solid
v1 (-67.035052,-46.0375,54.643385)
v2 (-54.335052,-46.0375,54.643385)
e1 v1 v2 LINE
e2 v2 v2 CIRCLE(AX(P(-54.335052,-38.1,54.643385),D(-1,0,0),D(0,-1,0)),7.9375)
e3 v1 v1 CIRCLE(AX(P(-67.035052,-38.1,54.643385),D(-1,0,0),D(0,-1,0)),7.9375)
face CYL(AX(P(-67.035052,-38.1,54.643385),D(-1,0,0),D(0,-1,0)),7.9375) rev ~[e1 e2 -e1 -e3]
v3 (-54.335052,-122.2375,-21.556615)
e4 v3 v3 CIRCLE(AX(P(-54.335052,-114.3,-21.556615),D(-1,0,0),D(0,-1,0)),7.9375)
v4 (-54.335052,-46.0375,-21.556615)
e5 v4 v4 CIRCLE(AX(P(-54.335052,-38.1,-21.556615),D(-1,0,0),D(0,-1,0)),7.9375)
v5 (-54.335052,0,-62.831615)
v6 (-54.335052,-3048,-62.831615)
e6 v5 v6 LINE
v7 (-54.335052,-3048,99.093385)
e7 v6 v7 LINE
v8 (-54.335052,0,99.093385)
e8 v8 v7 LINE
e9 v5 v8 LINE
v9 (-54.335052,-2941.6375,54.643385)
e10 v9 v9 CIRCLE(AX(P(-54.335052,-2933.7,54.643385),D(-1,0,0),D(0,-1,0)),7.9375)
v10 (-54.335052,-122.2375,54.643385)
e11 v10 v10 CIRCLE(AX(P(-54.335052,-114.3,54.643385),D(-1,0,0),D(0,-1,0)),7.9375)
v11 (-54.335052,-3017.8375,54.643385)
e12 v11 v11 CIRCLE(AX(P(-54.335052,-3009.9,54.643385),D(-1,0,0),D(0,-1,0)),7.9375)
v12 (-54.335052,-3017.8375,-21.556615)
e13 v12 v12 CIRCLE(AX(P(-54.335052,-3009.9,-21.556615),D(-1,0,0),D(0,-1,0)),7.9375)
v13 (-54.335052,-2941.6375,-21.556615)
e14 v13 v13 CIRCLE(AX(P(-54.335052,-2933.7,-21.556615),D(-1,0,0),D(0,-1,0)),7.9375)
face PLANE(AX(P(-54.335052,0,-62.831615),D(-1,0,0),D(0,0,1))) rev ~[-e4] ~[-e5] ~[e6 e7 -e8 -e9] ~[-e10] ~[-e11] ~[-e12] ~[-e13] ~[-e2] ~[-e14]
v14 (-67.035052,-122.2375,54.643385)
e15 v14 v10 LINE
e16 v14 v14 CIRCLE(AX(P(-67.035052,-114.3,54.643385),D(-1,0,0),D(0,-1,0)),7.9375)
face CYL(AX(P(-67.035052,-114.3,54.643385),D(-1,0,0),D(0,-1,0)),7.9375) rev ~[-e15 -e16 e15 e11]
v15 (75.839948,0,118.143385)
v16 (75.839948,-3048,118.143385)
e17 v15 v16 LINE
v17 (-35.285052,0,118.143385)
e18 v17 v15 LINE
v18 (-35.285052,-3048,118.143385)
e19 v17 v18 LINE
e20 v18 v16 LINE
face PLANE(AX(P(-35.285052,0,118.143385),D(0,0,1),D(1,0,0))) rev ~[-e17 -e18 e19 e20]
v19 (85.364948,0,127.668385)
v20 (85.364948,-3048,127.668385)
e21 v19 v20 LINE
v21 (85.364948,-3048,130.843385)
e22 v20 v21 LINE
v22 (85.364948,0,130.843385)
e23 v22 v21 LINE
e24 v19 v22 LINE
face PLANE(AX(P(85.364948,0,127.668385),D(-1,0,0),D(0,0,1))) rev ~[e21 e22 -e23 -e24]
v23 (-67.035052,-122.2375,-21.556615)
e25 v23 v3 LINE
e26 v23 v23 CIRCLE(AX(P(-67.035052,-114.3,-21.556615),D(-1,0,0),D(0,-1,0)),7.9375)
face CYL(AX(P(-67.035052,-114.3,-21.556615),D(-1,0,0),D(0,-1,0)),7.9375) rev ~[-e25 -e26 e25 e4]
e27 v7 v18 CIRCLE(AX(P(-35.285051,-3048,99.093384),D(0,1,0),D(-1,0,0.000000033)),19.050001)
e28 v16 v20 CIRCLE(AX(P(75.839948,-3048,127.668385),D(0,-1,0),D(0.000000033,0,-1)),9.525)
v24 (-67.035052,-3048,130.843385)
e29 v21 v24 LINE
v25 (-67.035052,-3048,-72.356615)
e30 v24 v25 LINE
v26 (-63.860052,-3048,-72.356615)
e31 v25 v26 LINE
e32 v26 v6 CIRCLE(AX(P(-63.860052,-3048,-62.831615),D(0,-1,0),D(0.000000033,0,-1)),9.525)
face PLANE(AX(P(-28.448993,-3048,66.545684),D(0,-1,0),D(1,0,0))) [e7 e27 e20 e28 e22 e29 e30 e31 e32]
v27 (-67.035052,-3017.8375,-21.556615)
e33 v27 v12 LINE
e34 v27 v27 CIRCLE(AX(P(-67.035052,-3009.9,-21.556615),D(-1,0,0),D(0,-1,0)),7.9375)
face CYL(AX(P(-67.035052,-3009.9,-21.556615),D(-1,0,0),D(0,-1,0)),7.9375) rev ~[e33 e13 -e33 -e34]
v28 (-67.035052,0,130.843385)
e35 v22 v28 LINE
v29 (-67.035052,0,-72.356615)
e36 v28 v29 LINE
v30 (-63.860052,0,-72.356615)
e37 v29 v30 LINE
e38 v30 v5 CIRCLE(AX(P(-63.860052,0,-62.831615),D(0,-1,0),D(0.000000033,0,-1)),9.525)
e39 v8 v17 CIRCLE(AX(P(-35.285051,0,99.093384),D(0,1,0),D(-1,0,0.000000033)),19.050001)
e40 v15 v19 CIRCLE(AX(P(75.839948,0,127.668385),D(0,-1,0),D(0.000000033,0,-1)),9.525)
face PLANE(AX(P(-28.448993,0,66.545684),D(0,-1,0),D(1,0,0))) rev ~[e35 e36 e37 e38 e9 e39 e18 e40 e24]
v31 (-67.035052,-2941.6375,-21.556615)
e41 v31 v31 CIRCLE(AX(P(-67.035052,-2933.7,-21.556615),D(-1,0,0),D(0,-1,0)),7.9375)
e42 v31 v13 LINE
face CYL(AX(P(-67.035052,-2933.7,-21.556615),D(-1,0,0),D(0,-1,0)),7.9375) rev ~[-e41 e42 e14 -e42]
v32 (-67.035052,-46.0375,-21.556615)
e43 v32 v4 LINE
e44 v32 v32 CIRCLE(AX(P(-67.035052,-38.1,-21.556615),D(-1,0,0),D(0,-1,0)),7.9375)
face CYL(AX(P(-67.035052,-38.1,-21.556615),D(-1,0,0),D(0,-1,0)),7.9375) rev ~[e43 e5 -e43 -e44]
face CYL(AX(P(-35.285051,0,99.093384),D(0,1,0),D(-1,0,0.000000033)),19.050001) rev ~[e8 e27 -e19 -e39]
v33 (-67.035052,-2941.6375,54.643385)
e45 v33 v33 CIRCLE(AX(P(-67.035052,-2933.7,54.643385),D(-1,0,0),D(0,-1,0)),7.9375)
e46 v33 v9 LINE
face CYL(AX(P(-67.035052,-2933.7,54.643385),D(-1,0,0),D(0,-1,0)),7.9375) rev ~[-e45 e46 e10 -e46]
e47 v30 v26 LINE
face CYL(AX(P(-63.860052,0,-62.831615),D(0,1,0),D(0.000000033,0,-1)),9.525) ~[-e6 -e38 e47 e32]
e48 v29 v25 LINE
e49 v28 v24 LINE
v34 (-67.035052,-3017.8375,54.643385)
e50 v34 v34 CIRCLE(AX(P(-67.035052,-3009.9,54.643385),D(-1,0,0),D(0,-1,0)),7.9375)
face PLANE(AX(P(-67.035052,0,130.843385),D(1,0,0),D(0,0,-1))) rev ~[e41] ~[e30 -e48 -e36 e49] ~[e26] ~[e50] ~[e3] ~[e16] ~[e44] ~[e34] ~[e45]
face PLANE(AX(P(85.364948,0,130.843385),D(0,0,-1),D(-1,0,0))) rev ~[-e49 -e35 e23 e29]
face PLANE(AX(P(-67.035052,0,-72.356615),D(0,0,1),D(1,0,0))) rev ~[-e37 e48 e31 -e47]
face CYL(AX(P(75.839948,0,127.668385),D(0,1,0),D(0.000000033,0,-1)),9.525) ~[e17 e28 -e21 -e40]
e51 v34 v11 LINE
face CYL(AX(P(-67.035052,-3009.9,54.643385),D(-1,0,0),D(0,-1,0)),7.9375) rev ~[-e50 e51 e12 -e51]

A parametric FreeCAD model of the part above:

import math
import FreeCAD as App
import Part
import Sketcher
from FreeCAD import Vector
Q = App.Units.Quantity

doc = App.newDocument("Part")
body = doc.addObject("PartDesign::Body", "Body")

# Sketch on XZ plane
sketch1 = body.newObject("Sketcher::SketchObject", "Sketch")
sketch1.AttachmentSupport = (doc.getObject("XZ_Plane"), [""])
sketch1.MapMode = "FlatFace"
sketch1.addGeometry([
    Part.LineSegment(Vector(85.4, 130.8, 0), Vector(-67, 130.8, 0)),  # 0
    Part.LineSegment(Vector(-67, 130.8, 0), Vector(-67, -72.4, 0)),  # 1
    Part.LineSegment(Vector(-67, -72.4, 0), Vector(-63.9, -72.4, 0)),  # 2
    Part.ArcOfCircle(Part.Circle(Vector(-63.9, -62.8, 0), Vector(0, 0, 1), 9.5), math.radians(-90), math.radians(0)),  # 3
    Part.LineSegment(Vector(-54.3, -62.8, 0), Vector(-54.3, 99.1, 0)),  # 4
    Part.ArcOfCircle(Part.Circle(Vector(-35.3, 99.1, 0), Vector(0, 0, 1), 19.1), math.radians(90), math.radians(180)),  # 5
    Part.LineSegment(Vector(-35.3, 118.1, 0), Vector(75.8, 118.1, 0)),  # 6
    Part.ArcOfCircle(Part.Circle(Vector(75.8, 127.7, 0), Vector(0, 0, 1), 9.5), math.radians(-90), math.radians(0)),  # 7
    Part.LineSegment(Vector(85.4, 127.7, 0), Vector(85.4, 130.8, 0)),  # 8
], False)
sketch1.addConstraint([
    Sketcher.Constraint("Coincident", 0, 2, 1, 1),
    Sketcher.Constraint("Coincident", 1, 2, 2, 1),
    Sketcher.Constraint("Tangent", 2, 2, 3, 1),
    Sketcher.Constraint("Tangent", 3, 2, 4, 1),
    Sketcher.Constraint("Tangent", 4, 2, 5, 2),
    Sketcher.Constraint("Tangent", 5, 1, 6, 1),
    Sketcher.Constraint("Tangent", 6, 2, 7, 1),
    Sketcher.Constraint("Tangent", 7, 2, 8, 1),
    Sketcher.Constraint("Coincident", 8, 2, 0, 1),
    Sketcher.Constraint("Horizontal", 0),
    Sketcher.Constraint("Vertical", 1),
    Sketcher.Constraint("Horizontal", 2),
    Sketcher.Constraint("Vertical", 4),
    Sketcher.Constraint("Horizontal", 6),
    Sketcher.Constraint("Vertical", 8),
    Sketcher.Constraint("Equal", 3, 7),
    Sketcher.Constraint("Equal", 2, 8),
    Sketcher.Constraint("DistanceX", 0, 2, 0, 1, Q("6 in")),
    Sketcher.Constraint("DistanceY", 1, 2, 1, 1, Q("8 in")),
    Sketcher.Constraint("Radius", 5, Q("0.75 in")),
    Sketcher.Constraint("Radius", 3, Q("0.375 in")),
    Sketcher.Constraint("DistanceX", 3, 3, 7, 3, Q("5.5 in")),
    Sketcher.Constraint("DistanceX", 5, 3, -1, 1, Q("35.285051 mm")),
    Sketcher.Constraint("DistanceY", 3, 3, -1, 1, Q("62.831615 mm")),
])
pad1 = body.newObject("PartDesign::Pad", "Pad")
pad1.Profile = sketch1
pad1.Length = Q("120 in")

# Sketch on YZ plane
sketch2 = body.newObject("Sketcher::SketchObject", "Sketch001")
sketch2.AttachmentSupport = (doc.getObject("YZ_Plane"), [""])
sketch2.MapMode = "FlatFace"
sketch2.AttachmentOffset = App.Placement(Vector(0, 0, -67.035052), App.Rotation())
sketch2.addGeometry([
    Part.Circle(Vector(-38, 55, 0), Vector(0, 0, 1), 8),  # 0
    Part.Circle(Vector(-114, 55, 0), Vector(0, 0, 1), 8),  # 1
    Part.Circle(Vector(-38, -22, 0), Vector(0, 0, 1), 8),  # 2
    Part.Circle(Vector(-114, -22, 0), Vector(0, 0, 1), 8),  # 3
    Part.Circle(Vector(-2934, 55, 0), Vector(0, 0, 1), 8),  # 4
    Part.Circle(Vector(-3010, 55, 0), Vector(0, 0, 1), 8),  # 5
    Part.Circle(Vector(-3010, -22, 0), Vector(0, 0, 1), 8),  # 6
    Part.Circle(Vector(-2934, -22, 0), Vector(0, 0, 1), 8),  # 7
], False)
sketch2.addConstraint([
    Sketcher.Constraint("Equal", 0, 1),
    Sketcher.Constraint("Equal", 1, 2),
    Sketcher.Constraint("Equal", 2, 3),
    Sketcher.Constraint("Equal", 3, 4),
    Sketcher.Constraint("Equal", 4, 5),
    Sketcher.Constraint("Equal", 5, 6),
    Sketcher.Constraint("Equal", 6, 7),
    Sketcher.Constraint("Horizontal", 0, 3, 1, 3),
    Sketcher.Constraint("Horizontal", 2, 3, 3, 3),
    Sketcher.Constraint("Horizontal", 1, 3, 4, 3),
    Sketcher.Constraint("Horizontal", 4, 3, 5, 3),
    Sketcher.Constraint("Horizontal", 3, 3, 6, 3),
    Sketcher.Constraint("Horizontal", 6, 3, 7, 3),
    Sketcher.Constraint("Vertical", 0, 3, 2, 3),
    Sketcher.Constraint("Vertical", 1, 3, 3, 3),
    Sketcher.Constraint("Vertical", 5, 3, 6, 3),
    Sketcher.Constraint("Vertical", 4, 3, 7, 3),
    Sketcher.Constraint("Diameter", 0, Q("0.625 in")),
    Sketcher.Constraint("DistanceX", 1, 3, 0, 3, Q("3 in")),
    Sketcher.Constraint("DistanceY", 2, 3, 0, 3, Q("3 in")),
    Sketcher.Constraint("DistanceX", 4, 3, 1, 3, Q("111 in")),
    Sketcher.Constraint("DistanceX", 5, 3, 4, 3, Q("3 in")),
    Sketcher.Constraint("DistanceX", 0, 3, -1, 1, Q("1.5 in")),
    Sketcher.Constraint("DistanceY", -1, 1, 0, 3, Q("54.643385 mm")),
])
pocket1 = body.newObject("PartDesign::Pocket", "Pocket")
pocket1.Profile = sketch2
pocket1.Length = Q("1 in")
pocket1.Reversed = True

doc.recompute()
